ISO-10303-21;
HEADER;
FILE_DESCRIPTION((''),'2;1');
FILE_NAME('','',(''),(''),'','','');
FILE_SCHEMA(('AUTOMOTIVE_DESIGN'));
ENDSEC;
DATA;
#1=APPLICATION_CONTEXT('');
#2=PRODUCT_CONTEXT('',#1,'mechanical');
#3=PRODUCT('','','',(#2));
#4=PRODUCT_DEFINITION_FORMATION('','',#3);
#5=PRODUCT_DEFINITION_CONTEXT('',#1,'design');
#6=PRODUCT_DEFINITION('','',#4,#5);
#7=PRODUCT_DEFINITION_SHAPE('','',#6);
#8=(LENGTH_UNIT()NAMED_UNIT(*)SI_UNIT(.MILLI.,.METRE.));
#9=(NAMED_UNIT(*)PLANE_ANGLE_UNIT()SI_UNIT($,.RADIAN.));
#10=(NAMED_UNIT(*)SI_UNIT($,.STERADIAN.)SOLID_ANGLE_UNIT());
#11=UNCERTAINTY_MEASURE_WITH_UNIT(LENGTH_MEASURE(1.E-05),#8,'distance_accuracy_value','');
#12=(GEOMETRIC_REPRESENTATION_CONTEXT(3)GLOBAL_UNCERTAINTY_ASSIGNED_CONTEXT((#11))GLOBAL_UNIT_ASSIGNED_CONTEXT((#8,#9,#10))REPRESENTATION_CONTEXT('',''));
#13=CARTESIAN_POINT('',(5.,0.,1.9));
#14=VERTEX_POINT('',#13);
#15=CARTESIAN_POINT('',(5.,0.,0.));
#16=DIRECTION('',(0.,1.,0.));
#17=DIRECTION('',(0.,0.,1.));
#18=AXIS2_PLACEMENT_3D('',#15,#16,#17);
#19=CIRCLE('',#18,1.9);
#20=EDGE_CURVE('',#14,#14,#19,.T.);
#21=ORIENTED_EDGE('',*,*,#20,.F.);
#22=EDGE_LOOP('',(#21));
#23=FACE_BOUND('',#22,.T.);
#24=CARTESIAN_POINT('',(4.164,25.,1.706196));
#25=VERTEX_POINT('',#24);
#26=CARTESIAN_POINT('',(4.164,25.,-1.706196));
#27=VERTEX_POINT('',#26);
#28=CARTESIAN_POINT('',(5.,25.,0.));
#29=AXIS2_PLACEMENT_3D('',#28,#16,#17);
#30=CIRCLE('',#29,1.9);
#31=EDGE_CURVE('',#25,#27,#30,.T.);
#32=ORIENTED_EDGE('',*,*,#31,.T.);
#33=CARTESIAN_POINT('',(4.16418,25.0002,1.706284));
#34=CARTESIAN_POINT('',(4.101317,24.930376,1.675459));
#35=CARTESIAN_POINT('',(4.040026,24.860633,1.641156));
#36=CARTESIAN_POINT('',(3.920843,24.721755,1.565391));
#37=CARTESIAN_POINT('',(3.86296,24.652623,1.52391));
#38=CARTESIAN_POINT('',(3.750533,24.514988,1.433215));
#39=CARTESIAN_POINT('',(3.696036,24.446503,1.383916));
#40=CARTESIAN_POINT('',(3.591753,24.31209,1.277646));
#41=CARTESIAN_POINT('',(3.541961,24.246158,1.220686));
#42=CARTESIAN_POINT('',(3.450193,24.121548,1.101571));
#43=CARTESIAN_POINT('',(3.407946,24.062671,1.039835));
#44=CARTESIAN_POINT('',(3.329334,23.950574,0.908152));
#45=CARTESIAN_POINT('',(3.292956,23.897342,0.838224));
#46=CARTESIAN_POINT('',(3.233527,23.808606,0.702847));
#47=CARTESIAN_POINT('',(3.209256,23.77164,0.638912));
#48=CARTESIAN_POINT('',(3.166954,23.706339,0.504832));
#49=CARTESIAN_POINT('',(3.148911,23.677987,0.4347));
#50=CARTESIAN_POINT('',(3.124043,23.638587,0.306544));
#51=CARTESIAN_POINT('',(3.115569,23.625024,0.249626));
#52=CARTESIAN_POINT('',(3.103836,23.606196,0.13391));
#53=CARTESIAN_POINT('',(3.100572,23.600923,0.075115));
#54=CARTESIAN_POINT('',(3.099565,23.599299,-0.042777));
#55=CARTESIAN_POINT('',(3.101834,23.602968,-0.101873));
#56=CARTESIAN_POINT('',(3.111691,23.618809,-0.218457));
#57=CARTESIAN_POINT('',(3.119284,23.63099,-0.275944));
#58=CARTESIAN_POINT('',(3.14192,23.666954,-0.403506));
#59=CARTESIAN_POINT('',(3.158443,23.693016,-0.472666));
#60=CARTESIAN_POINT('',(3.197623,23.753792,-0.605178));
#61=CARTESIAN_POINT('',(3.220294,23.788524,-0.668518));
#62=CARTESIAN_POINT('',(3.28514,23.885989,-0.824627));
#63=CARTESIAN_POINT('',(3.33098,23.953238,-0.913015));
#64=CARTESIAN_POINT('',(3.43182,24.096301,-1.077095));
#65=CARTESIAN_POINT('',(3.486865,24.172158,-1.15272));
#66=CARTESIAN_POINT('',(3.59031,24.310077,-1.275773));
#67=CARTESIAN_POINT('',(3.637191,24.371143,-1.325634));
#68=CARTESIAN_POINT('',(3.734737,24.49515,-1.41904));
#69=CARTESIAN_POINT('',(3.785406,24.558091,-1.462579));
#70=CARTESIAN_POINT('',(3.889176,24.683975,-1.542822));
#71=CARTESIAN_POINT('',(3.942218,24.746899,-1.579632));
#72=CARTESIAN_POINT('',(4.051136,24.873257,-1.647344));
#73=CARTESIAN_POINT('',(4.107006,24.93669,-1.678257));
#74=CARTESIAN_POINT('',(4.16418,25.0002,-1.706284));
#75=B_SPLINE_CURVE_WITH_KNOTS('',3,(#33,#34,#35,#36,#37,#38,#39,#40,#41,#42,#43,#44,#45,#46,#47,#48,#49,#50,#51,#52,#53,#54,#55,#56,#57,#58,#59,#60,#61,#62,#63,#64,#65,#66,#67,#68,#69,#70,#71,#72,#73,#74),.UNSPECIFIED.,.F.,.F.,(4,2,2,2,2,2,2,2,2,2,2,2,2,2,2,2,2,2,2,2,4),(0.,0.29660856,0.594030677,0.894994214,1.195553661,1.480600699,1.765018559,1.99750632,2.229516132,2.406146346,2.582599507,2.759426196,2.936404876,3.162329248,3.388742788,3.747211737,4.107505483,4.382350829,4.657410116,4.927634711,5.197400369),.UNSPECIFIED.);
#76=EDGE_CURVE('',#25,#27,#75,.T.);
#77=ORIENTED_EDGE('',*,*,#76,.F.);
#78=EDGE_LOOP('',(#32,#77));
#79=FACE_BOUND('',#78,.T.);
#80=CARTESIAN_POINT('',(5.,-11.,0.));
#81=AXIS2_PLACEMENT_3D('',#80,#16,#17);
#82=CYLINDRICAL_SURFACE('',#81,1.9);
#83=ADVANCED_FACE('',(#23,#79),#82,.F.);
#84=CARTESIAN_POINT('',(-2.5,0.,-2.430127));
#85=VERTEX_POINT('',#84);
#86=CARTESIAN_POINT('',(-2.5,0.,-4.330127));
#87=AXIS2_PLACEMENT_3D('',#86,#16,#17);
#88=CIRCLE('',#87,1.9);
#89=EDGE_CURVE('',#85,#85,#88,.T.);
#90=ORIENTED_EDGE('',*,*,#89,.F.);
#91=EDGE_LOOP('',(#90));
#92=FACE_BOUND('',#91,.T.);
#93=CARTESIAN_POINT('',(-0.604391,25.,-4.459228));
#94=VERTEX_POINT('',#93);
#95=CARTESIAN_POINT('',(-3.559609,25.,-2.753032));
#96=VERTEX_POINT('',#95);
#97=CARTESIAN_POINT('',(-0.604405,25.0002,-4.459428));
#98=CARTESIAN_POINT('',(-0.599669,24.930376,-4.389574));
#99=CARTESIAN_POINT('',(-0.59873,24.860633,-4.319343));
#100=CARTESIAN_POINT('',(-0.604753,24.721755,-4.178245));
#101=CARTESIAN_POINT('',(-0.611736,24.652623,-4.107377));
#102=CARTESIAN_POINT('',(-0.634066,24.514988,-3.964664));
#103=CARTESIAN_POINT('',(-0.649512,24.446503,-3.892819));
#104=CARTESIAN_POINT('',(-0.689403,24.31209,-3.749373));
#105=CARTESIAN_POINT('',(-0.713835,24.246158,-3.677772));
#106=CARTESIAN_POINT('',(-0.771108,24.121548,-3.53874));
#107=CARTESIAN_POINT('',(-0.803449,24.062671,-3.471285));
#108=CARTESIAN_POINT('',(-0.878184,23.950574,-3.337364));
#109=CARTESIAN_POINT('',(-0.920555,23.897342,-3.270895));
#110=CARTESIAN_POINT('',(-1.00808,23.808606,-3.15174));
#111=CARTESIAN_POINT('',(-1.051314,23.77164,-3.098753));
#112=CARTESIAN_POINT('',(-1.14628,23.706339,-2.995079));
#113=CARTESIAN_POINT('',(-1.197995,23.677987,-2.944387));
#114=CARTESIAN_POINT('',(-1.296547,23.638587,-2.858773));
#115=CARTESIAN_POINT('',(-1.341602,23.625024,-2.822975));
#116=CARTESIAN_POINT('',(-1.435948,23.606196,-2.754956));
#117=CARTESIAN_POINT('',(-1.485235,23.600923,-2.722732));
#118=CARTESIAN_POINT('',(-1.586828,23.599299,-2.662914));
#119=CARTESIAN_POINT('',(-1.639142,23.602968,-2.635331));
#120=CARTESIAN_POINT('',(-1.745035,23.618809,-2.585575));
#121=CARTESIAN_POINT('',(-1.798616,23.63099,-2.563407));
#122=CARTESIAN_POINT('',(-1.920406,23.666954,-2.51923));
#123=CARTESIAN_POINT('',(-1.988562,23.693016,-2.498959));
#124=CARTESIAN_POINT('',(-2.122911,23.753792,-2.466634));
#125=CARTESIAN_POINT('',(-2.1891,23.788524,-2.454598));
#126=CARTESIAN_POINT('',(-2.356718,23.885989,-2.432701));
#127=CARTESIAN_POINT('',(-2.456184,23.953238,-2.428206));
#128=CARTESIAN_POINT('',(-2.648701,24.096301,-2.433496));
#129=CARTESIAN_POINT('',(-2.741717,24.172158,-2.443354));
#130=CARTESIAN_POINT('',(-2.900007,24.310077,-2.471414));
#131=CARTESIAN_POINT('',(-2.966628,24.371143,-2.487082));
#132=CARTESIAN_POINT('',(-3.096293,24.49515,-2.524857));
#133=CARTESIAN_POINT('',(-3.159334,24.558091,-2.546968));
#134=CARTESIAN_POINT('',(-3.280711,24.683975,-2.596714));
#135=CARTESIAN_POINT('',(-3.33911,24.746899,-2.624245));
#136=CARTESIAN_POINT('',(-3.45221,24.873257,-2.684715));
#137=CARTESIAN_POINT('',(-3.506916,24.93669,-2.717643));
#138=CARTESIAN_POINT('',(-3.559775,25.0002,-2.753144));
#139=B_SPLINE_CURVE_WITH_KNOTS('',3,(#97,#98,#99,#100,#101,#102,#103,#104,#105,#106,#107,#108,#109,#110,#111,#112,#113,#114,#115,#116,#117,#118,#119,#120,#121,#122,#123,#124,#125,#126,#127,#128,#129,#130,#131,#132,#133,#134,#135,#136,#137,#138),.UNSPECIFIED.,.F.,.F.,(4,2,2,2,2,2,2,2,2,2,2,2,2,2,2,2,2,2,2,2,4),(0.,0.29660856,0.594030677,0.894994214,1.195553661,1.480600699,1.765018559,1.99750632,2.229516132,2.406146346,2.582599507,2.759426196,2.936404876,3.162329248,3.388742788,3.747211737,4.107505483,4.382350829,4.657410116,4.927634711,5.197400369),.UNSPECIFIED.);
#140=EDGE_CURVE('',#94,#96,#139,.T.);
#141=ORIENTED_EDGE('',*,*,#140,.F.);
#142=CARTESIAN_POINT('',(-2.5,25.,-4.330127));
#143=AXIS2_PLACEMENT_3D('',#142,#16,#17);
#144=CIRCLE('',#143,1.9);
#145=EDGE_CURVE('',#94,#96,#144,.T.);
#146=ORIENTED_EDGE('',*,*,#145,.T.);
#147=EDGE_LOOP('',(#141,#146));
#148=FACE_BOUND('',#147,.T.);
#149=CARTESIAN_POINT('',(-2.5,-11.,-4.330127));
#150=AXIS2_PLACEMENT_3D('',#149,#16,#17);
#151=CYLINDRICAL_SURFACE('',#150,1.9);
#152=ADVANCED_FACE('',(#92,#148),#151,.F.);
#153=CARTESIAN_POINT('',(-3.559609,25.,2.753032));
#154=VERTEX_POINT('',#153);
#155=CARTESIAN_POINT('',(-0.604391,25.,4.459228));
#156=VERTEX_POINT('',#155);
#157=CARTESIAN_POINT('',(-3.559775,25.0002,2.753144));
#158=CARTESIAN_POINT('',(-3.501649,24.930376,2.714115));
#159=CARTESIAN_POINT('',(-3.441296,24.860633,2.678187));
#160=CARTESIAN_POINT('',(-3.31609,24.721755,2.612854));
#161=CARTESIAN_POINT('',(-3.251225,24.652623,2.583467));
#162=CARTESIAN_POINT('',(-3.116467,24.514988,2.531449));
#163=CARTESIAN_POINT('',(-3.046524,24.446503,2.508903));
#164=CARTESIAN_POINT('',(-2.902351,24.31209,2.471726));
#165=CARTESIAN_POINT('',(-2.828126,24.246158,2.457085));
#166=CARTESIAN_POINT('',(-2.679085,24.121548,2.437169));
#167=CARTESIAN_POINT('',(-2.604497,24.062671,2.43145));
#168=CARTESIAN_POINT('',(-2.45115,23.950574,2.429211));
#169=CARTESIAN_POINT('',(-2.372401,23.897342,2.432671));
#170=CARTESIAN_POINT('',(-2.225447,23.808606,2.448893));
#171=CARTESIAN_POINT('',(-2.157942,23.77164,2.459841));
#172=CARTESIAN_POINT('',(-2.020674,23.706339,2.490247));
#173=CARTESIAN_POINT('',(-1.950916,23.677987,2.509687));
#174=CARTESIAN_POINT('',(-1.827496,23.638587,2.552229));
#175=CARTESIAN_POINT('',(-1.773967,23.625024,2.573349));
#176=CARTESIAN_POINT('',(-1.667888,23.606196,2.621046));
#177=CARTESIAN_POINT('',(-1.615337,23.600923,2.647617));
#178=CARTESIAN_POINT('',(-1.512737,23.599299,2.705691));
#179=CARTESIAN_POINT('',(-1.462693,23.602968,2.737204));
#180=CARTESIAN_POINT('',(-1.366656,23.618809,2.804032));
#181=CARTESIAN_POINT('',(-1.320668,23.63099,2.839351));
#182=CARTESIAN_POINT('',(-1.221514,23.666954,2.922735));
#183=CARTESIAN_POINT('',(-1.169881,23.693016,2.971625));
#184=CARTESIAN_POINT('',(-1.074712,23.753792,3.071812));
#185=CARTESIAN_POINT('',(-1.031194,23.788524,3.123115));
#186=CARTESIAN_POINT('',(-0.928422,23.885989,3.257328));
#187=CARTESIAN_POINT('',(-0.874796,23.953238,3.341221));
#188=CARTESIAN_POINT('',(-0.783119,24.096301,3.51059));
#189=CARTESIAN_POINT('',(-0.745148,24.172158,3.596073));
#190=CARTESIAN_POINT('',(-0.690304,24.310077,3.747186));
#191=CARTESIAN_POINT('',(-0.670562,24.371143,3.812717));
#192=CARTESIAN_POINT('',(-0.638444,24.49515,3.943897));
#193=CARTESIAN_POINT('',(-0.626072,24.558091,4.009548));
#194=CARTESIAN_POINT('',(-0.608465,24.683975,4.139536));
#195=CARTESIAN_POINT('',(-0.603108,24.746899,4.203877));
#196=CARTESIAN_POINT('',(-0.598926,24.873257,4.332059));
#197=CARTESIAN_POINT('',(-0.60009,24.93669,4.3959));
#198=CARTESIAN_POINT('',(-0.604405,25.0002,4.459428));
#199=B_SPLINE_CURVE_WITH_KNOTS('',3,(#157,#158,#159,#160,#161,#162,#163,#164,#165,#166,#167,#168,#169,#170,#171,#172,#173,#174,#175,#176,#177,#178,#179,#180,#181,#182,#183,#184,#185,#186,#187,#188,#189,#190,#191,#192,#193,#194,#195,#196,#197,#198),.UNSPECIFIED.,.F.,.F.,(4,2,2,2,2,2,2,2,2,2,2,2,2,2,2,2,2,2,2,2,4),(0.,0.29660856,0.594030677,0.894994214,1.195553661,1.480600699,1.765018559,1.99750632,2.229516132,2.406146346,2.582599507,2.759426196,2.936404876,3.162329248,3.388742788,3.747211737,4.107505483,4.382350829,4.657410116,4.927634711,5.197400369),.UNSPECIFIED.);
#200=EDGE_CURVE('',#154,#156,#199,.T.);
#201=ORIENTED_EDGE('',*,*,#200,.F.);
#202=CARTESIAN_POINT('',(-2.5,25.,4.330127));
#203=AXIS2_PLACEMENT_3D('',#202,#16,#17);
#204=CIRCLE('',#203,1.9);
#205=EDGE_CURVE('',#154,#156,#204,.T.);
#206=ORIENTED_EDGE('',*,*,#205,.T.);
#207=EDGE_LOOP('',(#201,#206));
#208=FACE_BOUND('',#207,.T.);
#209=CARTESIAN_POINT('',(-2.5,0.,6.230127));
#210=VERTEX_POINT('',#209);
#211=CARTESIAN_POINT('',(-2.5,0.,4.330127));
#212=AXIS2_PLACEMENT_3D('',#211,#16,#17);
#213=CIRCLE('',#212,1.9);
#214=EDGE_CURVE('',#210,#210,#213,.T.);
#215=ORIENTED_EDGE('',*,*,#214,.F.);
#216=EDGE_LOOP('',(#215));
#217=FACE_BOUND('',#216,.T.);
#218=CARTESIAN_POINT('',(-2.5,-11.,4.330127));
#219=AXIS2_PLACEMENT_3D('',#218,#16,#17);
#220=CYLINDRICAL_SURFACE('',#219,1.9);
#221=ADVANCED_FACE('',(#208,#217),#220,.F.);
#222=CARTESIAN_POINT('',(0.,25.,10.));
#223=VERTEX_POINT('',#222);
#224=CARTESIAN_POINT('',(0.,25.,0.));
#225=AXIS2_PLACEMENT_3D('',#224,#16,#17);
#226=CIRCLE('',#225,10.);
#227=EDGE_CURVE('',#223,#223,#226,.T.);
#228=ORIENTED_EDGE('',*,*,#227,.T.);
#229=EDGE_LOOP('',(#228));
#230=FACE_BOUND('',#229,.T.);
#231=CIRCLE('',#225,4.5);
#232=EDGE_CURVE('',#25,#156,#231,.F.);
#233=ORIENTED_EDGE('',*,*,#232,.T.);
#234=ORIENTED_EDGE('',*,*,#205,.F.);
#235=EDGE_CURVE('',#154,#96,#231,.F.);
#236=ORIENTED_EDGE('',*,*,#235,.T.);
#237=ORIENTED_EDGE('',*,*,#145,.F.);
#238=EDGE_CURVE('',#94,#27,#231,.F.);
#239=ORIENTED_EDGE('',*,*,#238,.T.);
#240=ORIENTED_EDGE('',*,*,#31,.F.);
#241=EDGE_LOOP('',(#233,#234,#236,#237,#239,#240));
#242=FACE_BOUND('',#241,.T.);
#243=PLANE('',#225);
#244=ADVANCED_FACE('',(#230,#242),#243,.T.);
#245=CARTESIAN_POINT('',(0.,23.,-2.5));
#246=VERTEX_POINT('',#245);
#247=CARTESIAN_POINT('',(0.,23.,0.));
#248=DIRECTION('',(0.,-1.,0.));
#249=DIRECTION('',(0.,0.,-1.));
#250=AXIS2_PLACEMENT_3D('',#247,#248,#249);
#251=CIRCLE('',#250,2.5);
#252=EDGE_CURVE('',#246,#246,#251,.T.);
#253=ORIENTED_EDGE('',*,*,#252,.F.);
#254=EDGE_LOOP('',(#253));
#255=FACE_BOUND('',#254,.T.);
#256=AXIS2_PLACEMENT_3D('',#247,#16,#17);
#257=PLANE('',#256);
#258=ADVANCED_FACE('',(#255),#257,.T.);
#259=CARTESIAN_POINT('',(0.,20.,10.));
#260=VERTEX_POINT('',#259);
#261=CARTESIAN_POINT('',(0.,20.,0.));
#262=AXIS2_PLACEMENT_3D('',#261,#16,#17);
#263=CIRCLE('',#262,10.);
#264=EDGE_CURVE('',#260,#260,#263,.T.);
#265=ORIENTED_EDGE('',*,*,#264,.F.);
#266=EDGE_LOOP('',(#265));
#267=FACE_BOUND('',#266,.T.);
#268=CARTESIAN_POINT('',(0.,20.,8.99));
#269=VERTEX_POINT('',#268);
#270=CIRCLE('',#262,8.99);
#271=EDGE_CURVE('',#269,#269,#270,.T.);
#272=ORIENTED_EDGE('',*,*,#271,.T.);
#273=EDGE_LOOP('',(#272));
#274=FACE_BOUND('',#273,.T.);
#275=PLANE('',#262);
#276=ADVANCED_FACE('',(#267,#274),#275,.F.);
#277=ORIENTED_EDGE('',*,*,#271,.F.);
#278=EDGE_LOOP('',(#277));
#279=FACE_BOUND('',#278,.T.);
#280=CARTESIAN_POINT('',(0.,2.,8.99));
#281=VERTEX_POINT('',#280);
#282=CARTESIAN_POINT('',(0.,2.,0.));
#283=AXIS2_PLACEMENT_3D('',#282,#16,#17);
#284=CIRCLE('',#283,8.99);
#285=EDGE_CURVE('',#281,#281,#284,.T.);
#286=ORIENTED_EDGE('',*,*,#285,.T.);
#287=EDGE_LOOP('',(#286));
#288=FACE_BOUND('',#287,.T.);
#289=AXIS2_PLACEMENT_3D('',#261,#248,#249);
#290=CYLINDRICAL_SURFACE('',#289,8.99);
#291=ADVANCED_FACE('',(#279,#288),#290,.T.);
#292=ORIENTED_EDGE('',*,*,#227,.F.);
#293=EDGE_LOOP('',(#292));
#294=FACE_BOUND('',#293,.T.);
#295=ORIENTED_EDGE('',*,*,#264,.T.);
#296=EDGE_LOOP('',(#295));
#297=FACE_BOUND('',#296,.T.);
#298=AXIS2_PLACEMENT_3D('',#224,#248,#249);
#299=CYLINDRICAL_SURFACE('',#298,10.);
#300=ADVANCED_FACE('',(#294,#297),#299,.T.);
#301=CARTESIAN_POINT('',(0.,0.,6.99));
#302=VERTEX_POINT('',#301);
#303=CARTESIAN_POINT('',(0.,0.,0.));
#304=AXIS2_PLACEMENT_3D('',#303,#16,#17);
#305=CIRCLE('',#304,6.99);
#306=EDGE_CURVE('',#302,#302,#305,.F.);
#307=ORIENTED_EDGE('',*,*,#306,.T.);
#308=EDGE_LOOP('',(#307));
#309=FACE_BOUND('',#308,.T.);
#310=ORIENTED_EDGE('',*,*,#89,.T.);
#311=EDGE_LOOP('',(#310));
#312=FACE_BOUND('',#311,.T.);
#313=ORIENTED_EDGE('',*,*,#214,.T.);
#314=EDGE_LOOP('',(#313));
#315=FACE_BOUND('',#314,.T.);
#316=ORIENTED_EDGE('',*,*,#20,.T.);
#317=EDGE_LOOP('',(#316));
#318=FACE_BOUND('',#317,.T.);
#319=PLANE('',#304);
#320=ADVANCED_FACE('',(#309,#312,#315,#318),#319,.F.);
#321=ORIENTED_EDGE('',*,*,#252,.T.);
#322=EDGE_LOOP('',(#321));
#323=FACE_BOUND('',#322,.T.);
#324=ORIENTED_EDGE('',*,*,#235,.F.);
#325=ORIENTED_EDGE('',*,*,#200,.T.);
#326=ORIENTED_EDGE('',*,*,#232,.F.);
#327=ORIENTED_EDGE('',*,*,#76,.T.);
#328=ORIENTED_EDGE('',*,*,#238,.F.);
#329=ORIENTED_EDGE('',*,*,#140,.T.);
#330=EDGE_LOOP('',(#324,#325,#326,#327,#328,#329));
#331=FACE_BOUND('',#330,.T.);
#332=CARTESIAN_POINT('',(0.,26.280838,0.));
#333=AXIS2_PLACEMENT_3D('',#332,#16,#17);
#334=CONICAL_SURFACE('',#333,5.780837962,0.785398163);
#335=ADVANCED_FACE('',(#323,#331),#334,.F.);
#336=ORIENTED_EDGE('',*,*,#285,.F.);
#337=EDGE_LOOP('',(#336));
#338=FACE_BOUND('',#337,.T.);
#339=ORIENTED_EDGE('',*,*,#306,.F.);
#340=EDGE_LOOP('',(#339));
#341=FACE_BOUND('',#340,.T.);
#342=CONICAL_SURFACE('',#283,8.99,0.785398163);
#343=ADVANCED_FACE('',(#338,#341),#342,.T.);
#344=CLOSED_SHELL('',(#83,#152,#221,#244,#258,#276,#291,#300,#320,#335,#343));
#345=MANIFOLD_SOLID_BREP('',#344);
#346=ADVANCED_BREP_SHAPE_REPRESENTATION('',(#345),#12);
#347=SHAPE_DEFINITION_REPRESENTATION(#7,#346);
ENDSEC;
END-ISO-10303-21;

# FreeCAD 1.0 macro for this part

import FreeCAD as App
import Part
import Sketcher
from FreeCAD import Vector
Q = App.Units.Quantity


def edges_at(feature, points):
    """Names of the edges that pass closest to the given points."""
    edges = feature.Shape.Edges
    near = lambda p: min(range(len(edges)), key=lambda i: edges[i].distToShape(Part.Vertex(*p))[0])
    return sorted({f"Edge{near(p) + 1}" for p in points})


def add_polygon(sketch, points):
    """Adds a closed chain of lines whose ends are joined by coincident constraints."""
    first, n = sketch.GeometryCount, len(points)
    for a, b in zip(points, points[1:] + points[:1]):
        sketch.addGeometry(Part.LineSegment(App.Vector(*a, 0), App.Vector(*b, 0)), False)
    for i in range(n):
        sketch.addConstraint(Sketcher.Constraint("Coincident", first + i, 2, first + (i + 1) % n, 1))

doc = App.newDocument("Part")
body = doc.addObject("PartDesign::Body", "Body")

# Sketch on XZ plane
sketch1 = doc.addObject("Sketcher::SketchObject", "Sketch")
body.addObject(sketch1)
sketch1.AttachmentSupport = (doc.XZ_Plane, [""])
sketch1.MapMode = "FlatFace"
sketch1.addGeometry(Part.Circle(Vector(0, 0, 0), Vector(0, 0, 1), 9), False)
sketch1.addConstraint([
    Sketcher.Constraint("Coincident", 0, 3, -1, 1),
    Sketcher.Constraint("Diameter", 0, Q("17.98 mm")),
])
pad1 = doc.addObject("PartDesign::Pad", "Pad")
body.addObject(pad1)
pad1.Profile = sketch1
pad1.Length = 20
pad1.Reversed = True

# Sketch on XZ plane
sketch2 = doc.addObject("Sketcher::SketchObject", "Sketch001")
body.addObject(sketch2)
sketch2.AttachmentSupport = (doc.XZ_Plane, [""])
sketch2.MapMode = "FlatFace"
sketch2.AttachmentOffset = App.Placement(Vector(0, 0, -20), App.Rotation())
sketch2.addGeometry(Part.Circle(Vector(0, 0, 0), Vector(0, 0, 1), 10), False)
sketch2.addConstraint([
    Sketcher.Constraint("Coincident", 0, 3, -1, 1),
    Sketcher.Constraint("Diameter", 0, Q("20 mm")),
])
pad2 = doc.addObject("PartDesign::Pad", "Pad001")
body.addObject(pad2)
pad2.Profile = sketch2
pad2.Length = 5
pad2.Reversed = True
doc.recompute()

chamfer = doc.addObject("PartDesign::Chamfer", "Chamfer")
body.addObject(chamfer)
chamfer.Base = (pad2, edges_at(pad2, [(0, 0, -8.99)]))
chamfer.Size = 2

# Sketch on XZ plane
sketch3 = doc.addObject("Sketcher::SketchObject", "Sketch002")
body.addObject(sketch3)
sketch3.AttachmentSupport = (doc.XZ_Plane, [""])
sketch3.MapMode = "FlatFace"
sketch3.AttachmentOffset = App.Placement(Vector(0, 0, -25), App.Rotation())
sketch3.addGeometry([
    Part.Circle(Vector(5, 0, 0), Vector(0, 0, 1), 1.9),
    Part.Circle(Vector(-2.5, 4.3, 0), Vector(0, 0, 1), 1.9),
    Part.Circle(Vector(-2.5, -4.3, 0), Vector(0, 0, 1), 1.9),
], False)
sketch3.addConstraint([
    Sketcher.Constraint("Equal", 0, 1),
    Sketcher.Constraint("Equal", 1, 2),
    Sketcher.Constraint("Symmetric", 1, 3, 2, 3, -1),
    Sketcher.Constraint("PointOnObject", 0, 3, -1),
    Sketcher.Constraint("Diameter", 0, Q("3.8 mm")),
    Sketcher.Constraint("DistanceX", -1, 1, 0, 3, Q("5 mm")),
    Sketcher.Constraint("DistanceX", 1, 3, -1, 1, Q("2.5 mm")),
    Sketcher.Constraint("DistanceY", -1, 1, 1, 3, Q("4.330127 mm")),
])
pocket1 = doc.addObject("PartDesign::Pocket", "Pocket")
body.addObject(pocket1)
pocket1.Profile = sketch3
pocket1.Length = 36
pocket1.Reversed = True

# Sketch on XY plane
sketch4 = doc.addObject("Sketcher::SketchObject", "Sketch003")
body.addObject(sketch4)
sketch4.AttachmentSupport = (doc.XY_Plane, [""])
sketch4.MapMode = "FlatFace"
add_polygon(sketch4, [(-2.5, 23), (0, 23), (0, 26.3), (-5.8, 26.3)])  # lines 0-3
sketch4.addConstraint([
    Sketcher.Constraint("Horizontal", 0),
    Sketcher.Constraint("Vertical", 1),
    Sketcher.Constraint("Horizontal", 2),
    Sketcher.Constraint("PointOnObject", 0, 2, -2),
    Sketcher.Constraint("Angle", 3, Q("-45 deg")),
    Sketcher.Constraint("DistanceX", 0, 1, 0, 2, Q("2.5 mm")),
    Sketcher.Constraint("DistanceY", -1, 1, 0, 2, Q("23 mm")),
    Sketcher.Constraint("DistanceX", 2, 2, 2, 1, Q("5.780838 mm")),
])
groove = doc.addObject("PartDesign::Groove", "Groove")
body.addObject(groove)
groove.Profile = sketch4
groove.ReferenceAxis = (sketch4, ["V_Axis"])
groove.Angle = 360

doc.recompute()
